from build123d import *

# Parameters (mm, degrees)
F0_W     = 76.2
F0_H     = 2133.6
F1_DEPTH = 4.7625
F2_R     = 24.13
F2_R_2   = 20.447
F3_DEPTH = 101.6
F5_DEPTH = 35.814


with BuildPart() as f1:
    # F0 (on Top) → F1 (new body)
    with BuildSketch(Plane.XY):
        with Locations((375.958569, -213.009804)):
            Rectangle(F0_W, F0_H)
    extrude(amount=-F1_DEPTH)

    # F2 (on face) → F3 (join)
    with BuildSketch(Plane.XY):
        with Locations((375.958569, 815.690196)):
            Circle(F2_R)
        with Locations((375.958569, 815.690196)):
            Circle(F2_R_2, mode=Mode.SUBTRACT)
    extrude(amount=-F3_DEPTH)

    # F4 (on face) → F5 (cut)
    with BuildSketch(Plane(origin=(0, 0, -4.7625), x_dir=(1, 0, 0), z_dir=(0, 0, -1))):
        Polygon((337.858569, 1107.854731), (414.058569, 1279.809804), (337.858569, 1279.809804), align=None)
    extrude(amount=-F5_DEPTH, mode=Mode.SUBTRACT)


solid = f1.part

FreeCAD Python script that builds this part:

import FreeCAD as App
import Part
import Sketcher

V = App.Vector
Q = App.Units.Quantity

doc = App.newDocument("Part")
body = doc.addObject("PartDesign::Body", "Body")

sketch1 = doc.addObject("Sketcher::SketchObject", "Sketch")
body.addObject(sketch1)
sketch1.AttachmentSupport = (doc.XY_Plane, [""])
sketch1.MapMode = "FlatFace"
sketch1.addGeometry([
    Part.LineSegment(V(337.858569, 853.790196, 0), V(337.858569, -1279.809804, 0)),
    Part.LineSegment(V(337.858569, -1279.809804, 0), V(414.058569, -1279.809804, 0)),
    Part.LineSegment(V(414.058569, -1279.809804, 0), V(414.058569, 853.790196, 0)),
    Part.LineSegment(V(414.058569, 853.790196, 0), V(337.858569, 853.790196, 0)),
], False)
sketch1.addConstraint([
    Sketcher.Constraint("Coincident", 0, 2, 1, 1),
    Sketcher.Constraint("Coincident", 1, 2, 2, 1),
    Sketcher.Constraint("Coincident", 2, 2, 3, 1),
    Sketcher.Constraint("Coincident", 3, 2, 0, 1),
    Sketcher.Constraint("Vertical", 0),
    Sketcher.Constraint("Horizontal", 1),
    Sketcher.Constraint("Vertical", 2),
    Sketcher.Constraint("Horizontal", 3),
    Sketcher.Constraint("DistanceX", 1, 1, 1, 2, Q("3 in")),
    Sketcher.Constraint("DistanceY", 0, 2, 0, 1, Q("84 in")),
    Sketcher.Constraint("DistanceX", -1, 1, 0, 2, Q("337.858569 mm")),
    Sketcher.Constraint("DistanceY", 0, 2, -1, 1, Q("1279.809804 mm")),
])
pad1 = doc.addObject("PartDesign::Pad", "Pad")
body.addObject(pad1)
pad1.Profile = sketch1
pad1.Length = Q("0.1875 in")
pad1.Reversed = True

sketch2 = doc.addObject("Sketcher::SketchObject", "Sketch001")
body.addObject(sketch2)
sketch2.AttachmentSupport = (doc.XY_Plane, [""])
sketch2.MapMode = "FlatFace"
sketch2.addGeometry([
    Part.Circle(V(375.958569, 815.690196, 0), V(0, 0, 1), 24.13),
    Part.Circle(V(375.958569, 815.690196, 0), V(0, 0, 1), 20.447),
], False)
sketch2.addConstraint([
    Sketcher.Constraint("Coincident", 1, 3, 0, 3),
    Sketcher.Constraint("Diameter", 0, Q("1.9 in")),
    Sketcher.Constraint("Diameter", 1, Q("1.61 in")),
    Sketcher.Constraint("DistanceX", -1, 1, 0, 3, Q("375.958569 mm")),
    Sketcher.Constraint("DistanceY", -1, 1, 0, 3, Q("815.690196 mm")),
])
pad2 = doc.addObject("PartDesign::Pad", "Pad001")
body.addObject(pad2)
pad2.Profile = sketch2
pad2.Length = Q("4 in")
pad2.Reversed = True

sketch3 = doc.addObject("Sketcher::SketchObject", "Sketch002")
body.addObject(sketch3)
sketch3.AttachmentSupport = (doc.XY_Plane, [""])
sketch3.MapMode = "FlatFace"
sketch3.AttachmentOffset = App.Placement(V(0, 0, -0.1875 * 25.4), App.Rotation())
sketch3.addGeometry([
    Part.LineSegment(V(337.858569, -1107.854731, 0), V(414.058569, -1279.809804, 0)),
    Part.LineSegment(V(414.058569, -1279.809804, 0), V(337.858569, -1279.809804, 0)),
    Part.LineSegment(V(337.858569, -1279.809804, 0), V(337.858569, -1107.854731, 0)),
], False)
sketch3.addConstraint([
    Sketcher.Constraint("Coincident", 0, 2, 1, 1),
    Sketcher.Constraint("Coincident", 1, 2, 2, 1),
    Sketcher.Constraint("Coincident", 2, 2, 0, 1),
    Sketcher.Constraint("Horizontal", 1),
    Sketcher.Constraint("Vertical", 2),
    Sketcher.Constraint("DistanceX", 1, 2, 1, 1, Q("3 in")),
    Sketcher.Constraint("Angle", 0, Q("-66.1 deg")),
    Sketcher.Constraint("DistanceX", -1, 1, 0, 2, Q("414.058569 mm")),
    Sketcher.Constraint("DistanceY", 2, 2, -1, 1, Q("1107.854731 mm")),
])
pocket1 = doc.addObject("PartDesign::Pocket", "Pocket")
body.addObject(pocket1)
pocket1.Profile = sketch3
pocket1.Length = Q("1.41 in")
pocket1.Reversed = True

doc.recompute()
